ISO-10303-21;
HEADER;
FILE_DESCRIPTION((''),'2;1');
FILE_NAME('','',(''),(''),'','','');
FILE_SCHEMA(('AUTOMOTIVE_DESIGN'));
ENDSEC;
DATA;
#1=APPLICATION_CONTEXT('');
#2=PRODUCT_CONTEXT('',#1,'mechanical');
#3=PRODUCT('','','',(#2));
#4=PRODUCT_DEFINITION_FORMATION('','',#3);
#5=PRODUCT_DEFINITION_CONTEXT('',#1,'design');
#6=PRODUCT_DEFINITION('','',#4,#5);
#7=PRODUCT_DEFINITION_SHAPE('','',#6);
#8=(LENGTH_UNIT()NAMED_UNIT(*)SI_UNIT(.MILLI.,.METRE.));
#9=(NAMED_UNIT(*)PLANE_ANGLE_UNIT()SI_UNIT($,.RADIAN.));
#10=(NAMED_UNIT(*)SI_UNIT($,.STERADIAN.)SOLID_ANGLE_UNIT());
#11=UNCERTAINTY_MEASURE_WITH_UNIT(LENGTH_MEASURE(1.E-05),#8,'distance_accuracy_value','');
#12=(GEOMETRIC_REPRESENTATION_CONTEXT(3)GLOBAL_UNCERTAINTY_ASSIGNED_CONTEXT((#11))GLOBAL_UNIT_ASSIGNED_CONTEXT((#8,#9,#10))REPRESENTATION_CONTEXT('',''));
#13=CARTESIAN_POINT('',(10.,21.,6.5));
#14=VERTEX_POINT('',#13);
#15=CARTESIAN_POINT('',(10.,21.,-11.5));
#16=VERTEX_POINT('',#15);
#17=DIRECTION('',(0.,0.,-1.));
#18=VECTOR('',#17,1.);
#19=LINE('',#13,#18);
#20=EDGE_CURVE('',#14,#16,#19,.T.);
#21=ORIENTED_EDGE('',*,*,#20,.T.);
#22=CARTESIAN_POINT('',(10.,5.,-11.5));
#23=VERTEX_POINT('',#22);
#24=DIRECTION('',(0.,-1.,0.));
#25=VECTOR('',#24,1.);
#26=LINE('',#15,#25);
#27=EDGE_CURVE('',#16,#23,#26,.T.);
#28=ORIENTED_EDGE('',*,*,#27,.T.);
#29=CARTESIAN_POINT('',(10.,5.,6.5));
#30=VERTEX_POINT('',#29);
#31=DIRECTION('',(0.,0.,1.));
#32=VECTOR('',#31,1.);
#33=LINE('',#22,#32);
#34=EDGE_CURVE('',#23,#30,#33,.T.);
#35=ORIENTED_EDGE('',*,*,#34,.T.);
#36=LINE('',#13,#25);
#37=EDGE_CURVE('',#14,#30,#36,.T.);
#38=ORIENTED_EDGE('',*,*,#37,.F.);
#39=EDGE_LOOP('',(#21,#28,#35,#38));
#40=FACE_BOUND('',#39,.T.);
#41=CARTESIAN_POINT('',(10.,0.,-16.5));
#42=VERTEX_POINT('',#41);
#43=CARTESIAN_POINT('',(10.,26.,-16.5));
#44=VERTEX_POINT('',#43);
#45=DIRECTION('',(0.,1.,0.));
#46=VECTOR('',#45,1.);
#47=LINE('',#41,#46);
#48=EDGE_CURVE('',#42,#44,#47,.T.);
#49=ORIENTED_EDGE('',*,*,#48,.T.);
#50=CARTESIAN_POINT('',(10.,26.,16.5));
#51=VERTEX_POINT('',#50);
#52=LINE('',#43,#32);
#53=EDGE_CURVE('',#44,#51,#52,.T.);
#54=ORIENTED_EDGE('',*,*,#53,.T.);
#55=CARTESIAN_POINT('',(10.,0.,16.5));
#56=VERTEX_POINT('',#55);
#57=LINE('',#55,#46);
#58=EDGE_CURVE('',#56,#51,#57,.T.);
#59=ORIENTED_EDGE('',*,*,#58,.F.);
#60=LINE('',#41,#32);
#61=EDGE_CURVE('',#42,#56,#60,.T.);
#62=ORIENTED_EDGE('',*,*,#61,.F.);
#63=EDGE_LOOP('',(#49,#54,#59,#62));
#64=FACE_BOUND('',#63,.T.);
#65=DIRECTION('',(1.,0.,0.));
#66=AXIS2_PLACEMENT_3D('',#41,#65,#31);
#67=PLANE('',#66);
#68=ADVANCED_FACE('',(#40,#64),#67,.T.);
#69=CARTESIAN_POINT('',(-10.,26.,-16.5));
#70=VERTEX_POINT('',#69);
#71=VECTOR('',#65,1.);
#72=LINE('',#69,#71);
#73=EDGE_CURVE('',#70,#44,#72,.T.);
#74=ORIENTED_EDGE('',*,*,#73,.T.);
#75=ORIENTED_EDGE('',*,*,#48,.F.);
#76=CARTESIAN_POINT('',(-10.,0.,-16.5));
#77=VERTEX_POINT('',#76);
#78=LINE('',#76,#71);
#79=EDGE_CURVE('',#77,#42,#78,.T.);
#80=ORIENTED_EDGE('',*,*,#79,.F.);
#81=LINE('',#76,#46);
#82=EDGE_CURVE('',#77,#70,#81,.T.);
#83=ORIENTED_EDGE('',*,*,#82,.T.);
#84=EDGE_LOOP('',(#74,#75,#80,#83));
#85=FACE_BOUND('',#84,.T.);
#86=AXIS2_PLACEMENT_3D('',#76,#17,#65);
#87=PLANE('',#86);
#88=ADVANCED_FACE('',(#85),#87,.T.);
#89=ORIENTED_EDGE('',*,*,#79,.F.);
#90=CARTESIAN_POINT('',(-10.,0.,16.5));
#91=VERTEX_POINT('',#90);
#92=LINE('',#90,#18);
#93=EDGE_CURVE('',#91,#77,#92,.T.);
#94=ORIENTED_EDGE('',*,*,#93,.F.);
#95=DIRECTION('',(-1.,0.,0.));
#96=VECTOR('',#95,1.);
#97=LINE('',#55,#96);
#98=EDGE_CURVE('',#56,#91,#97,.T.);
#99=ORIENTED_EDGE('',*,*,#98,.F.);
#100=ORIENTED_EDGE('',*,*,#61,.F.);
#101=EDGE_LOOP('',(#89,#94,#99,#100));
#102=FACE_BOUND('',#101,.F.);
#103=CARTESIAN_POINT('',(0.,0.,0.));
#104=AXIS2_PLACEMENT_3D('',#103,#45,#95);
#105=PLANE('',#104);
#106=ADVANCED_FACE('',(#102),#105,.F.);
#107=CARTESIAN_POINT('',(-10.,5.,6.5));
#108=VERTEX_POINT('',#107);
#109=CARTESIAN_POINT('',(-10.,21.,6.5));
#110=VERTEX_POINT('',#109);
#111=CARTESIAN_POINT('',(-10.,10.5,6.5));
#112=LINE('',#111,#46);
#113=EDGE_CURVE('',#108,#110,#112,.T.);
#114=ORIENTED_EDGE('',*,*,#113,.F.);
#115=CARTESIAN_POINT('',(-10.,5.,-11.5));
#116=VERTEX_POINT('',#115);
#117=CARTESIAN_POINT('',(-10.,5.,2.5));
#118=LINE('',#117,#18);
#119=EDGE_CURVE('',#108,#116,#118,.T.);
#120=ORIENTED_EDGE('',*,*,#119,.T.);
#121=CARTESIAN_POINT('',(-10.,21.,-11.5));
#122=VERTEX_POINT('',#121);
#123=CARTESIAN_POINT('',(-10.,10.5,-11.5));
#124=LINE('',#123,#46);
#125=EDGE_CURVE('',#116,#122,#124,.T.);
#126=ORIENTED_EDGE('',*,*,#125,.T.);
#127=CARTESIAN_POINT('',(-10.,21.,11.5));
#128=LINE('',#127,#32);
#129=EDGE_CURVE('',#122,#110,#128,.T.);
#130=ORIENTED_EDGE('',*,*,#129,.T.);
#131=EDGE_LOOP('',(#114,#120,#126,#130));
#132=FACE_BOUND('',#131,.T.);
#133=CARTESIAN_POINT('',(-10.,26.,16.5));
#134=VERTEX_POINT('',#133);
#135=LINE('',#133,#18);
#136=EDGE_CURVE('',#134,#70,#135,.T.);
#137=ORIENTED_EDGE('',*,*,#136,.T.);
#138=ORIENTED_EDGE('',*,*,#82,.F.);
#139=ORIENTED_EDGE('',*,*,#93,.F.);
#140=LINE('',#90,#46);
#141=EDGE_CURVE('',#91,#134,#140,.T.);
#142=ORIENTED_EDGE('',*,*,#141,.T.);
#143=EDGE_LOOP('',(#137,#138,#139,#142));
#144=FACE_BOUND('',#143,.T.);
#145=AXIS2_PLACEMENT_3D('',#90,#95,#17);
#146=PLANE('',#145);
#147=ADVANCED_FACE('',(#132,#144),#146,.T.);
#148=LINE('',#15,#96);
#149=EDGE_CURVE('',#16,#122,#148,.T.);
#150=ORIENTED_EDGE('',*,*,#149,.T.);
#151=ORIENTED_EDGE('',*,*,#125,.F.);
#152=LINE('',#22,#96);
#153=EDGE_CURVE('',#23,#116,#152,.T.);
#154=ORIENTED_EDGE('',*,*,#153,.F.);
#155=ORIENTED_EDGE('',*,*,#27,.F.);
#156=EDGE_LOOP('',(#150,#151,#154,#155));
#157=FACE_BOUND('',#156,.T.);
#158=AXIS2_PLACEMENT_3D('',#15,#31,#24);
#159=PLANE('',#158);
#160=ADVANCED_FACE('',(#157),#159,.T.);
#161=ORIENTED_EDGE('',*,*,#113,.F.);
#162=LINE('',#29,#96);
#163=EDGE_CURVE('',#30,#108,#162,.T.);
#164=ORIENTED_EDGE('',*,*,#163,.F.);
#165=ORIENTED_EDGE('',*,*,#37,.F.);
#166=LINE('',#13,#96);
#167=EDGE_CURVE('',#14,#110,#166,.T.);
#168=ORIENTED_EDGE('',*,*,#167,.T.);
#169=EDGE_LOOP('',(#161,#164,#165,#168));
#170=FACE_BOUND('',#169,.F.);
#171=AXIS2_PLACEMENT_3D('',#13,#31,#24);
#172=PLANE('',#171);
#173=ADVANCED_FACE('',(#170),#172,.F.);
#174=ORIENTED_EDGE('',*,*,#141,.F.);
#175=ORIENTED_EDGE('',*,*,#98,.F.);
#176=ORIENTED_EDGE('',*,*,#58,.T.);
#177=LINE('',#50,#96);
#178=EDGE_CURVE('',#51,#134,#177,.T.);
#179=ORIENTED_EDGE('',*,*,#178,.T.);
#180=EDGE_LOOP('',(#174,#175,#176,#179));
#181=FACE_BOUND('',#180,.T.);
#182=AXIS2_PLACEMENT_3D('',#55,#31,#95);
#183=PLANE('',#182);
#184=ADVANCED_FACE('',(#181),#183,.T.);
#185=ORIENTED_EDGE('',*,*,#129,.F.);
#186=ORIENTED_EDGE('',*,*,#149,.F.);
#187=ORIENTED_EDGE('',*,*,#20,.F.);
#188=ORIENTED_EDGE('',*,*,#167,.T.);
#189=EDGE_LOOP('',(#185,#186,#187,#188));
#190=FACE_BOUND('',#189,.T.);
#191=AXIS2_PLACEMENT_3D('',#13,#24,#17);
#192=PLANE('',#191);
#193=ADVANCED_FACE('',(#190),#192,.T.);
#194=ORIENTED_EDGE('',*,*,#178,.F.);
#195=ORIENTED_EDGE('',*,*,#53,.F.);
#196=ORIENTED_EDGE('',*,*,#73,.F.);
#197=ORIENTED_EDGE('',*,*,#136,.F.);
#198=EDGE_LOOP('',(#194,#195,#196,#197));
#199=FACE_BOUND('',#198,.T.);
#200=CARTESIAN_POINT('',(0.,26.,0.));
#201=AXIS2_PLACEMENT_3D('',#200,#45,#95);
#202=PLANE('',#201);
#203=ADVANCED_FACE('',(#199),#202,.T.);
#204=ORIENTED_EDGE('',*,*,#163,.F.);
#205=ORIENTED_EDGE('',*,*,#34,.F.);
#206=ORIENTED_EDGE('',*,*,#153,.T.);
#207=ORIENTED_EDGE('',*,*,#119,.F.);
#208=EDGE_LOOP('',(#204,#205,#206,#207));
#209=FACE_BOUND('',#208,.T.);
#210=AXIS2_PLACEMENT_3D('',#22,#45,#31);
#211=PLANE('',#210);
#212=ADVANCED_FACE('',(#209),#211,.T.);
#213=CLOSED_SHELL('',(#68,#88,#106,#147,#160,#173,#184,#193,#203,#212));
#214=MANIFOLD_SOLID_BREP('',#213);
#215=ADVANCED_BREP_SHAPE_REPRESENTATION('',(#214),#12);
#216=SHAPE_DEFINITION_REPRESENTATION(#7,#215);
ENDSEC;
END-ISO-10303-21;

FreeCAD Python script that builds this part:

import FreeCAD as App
import Part
import Sketcher

doc = App.newDocument("Part")
params = doc.addObject("Spreadsheet::Sheet", "Params")
for row, (alias, value) in enumerate([
    ("sketch1_width", "20 mm"),
    ("sketch1_height", "33 mm"),
    ("pad1_length", "26 mm"),
    ("sketch2_width", "16 mm"),
    ("sketch2_height", "18 mm"),
    ("pocket1_length", "26 mm"),
], start=1):
    params.set(f"A{row}", alias)
    params.set(f"B{row}", "=" + value)
    params.setAlias(f"B{row}", alias)

body = doc.addObject("PartDesign::Body", "Body")

# Sketch on XZ plane
sketch1 = body.newObject("Sketcher::SketchObject", "Sketch")
sketch1.AttachmentSupport = (doc.getObject("XZ_Plane"), [""])
sketch1.MapMode = "FlatFace"
sketch1.addGeometry(Part.LineSegment(App.Vector(-10, 16, 0), App.Vector(10, 16, 0)), False)
sketch1.addGeometry(Part.LineSegment(App.Vector(10, 16, 0), App.Vector(10, -16, 0)), False)
sketch1.addGeometry(Part.LineSegment(App.Vector(10, -16, 0), App.Vector(-10, -16, 0)), False)
sketch1.addGeometry(Part.LineSegment(App.Vector(-10, -16, 0), App.Vector(-10, 16, 0)), False)
sketch1.addConstraint(Sketcher.Constraint("Coincident", 0, 2, 1, 1))
sketch1.addConstraint(Sketcher.Constraint("Coincident", 1, 2, 2, 1))
sketch1.addConstraint(Sketcher.Constraint("Coincident", 2, 2, 3, 1))
sketch1.addConstraint(Sketcher.Constraint("Coincident", 3, 2, 0, 1))
sketch1.addConstraint(Sketcher.Constraint("Horizontal", 0))
sketch1.addConstraint(Sketcher.Constraint("Vertical", 1))
sketch1.addConstraint(Sketcher.Constraint("Horizontal", 2))
sketch1.addConstraint(Sketcher.Constraint("Vertical", 3))
sketch1.addConstraint(Sketcher.Constraint("Symmetric", 0, 2, 2, 2, -1, 1))
sketch1.addConstraint(Sketcher.Constraint("DistanceX", 0, 1, 0, 2, 20.0))
sketch1.addConstraint(Sketcher.Constraint("DistanceY", 1, 2, 1, 1, 33.0))
sketch1.setExpression("Constraints[9]", "Params.sketch1_width")
sketch1.setExpression("Constraints[10]", "Params.sketch1_height")
pad1 = body.newObject("PartDesign::Pad", "Pad")
pad1.Profile = sketch1
pad1.setExpression("Length", "Params.pad1_length")
pad1.Reversed = True

# Sketch on YZ plane
sketch2 = body.newObject("Sketcher::SketchObject", "Sketch001")
sketch2.AttachmentSupport = (doc.getObject("YZ_Plane"), [""])
sketch2.MapMode = "FlatFace"
sketch2.AttachmentOffset = App.Placement(App.Vector(0, 0, 10), App.Rotation())
sketch2.addGeometry(Part.LineSegment(App.Vector(21, -12, 0), App.Vector(21, 6, 0)), False)
sketch2.addGeometry(Part.LineSegment(App.Vector(21, 6, 0), App.Vector(5, 6, 0)), False)
sketch2.addGeometry(Part.LineSegment(App.Vector(5, 6, 0), App.Vector(5, -12, 0)), False)
sketch2.addGeometry(Part.LineSegment(App.Vector(5, -12, 0), App.Vector(21, -12, 0)), False)
sketch2.addConstraint(Sketcher.Constraint("Coincident", 0, 2, 1, 1))
sketch2.addConstraint(Sketcher.Constraint("Coincident", 1, 2, 2, 1))
sketch2.addConstraint(Sketcher.Constraint("Coincident", 2, 2, 3, 1))
sketch2.addConstraint(Sketcher.Constraint("Coincident", 3, 2, 0, 1))
sketch2.addConstraint(Sketcher.Constraint("Vertical", 0))
sketch2.addConstraint(Sketcher.Constraint("Horizontal", 1))
sketch2.addConstraint(Sketcher.Constraint("Vertical", 2))
sketch2.addConstraint(Sketcher.Constraint("Horizontal", 3))
sketch2.addConstraint(Sketcher.Constraint("DistanceX", -1, 1, 1, 2, 5.0))
sketch2.addConstraint(Sketcher.Constraint("DistanceX", 1, 2, 1, 1, 16.0))
sketch2.addConstraint(Sketcher.Constraint("DistanceY", 0, 1, 0, 2, 18.0))
sketch2.addConstraint(Sketcher.Constraint("DistanceY", -1, 1, 0, 2, 6.5))
sketch2.setExpression("Constraints[9]", "Params.sketch2_width")
sketch2.setExpression("Constraints[10]", "Params.sketch2_height")
pocket1 = body.newObject("PartDesign::Pocket", "Pocket")
pocket1.Profile = sketch2
pocket1.setExpression("Length", "Params.pocket1_length")

doc.recompute()
